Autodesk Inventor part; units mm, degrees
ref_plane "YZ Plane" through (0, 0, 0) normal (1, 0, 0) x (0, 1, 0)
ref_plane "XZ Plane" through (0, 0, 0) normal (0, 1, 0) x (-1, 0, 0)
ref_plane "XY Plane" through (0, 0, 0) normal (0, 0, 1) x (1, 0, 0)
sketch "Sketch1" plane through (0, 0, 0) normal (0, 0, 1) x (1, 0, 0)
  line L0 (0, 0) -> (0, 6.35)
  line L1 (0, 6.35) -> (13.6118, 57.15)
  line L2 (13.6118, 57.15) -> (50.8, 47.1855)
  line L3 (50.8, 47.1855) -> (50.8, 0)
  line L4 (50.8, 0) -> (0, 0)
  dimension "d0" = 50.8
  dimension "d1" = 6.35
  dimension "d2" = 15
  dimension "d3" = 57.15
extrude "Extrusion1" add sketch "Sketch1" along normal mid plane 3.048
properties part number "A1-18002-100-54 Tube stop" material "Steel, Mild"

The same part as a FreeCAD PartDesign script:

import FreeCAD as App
import Part
import Sketcher
Q = App.Units.Quantity


def add_polygon(sketch, points):
    """Adds a closed chain of lines whose ends are joined by coincident constraints."""
    first, n = sketch.GeometryCount, len(points)
    for a, b in zip(points, points[1:] + points[:1]):
        sketch.addGeometry(Part.LineSegment(App.Vector(*a, 0), App.Vector(*b, 0)), False)
    for i in range(n):
        sketch.addConstraint(Sketcher.Constraint("Coincident", first + i, 2, first + (i + 1) % n, 1))

doc = App.newDocument("Part")
body = doc.addObject("PartDesign::Body", "Body")

# Sketch on XY plane
sketch1 = body.newObject("Sketcher::SketchObject", "Sketch")
sketch1.AttachmentSupport = (doc.getObject("XY_Plane"), [""])
sketch1.MapMode = "FlatFace"
add_polygon(sketch1, [(0, 6), (0, 0), (51, 0), (51, 47), (14, 57)])  # lines 0-4
sketch1.addConstraint([
    Sketcher.Constraint("Vertical", 0),
    Sketcher.Constraint("Horizontal", 1),
    Sketcher.Constraint("Vertical", 2),
    Sketcher.Constraint("Coincident", 0, 2, -1, 1),
    Sketcher.Constraint("Perpendicular", 3, 4),
    Sketcher.Constraint("DistanceX", 1, 1, 1, 2, Q("2 in")),
    Sketcher.Constraint("DistanceY", 4, 2, 3, 2, Q("2 in")),
    Sketcher.Constraint("DistanceY", 0, 2, 0, 1, Q("0.25 in")),
    Sketcher.Constraint("Angle", 3, Q("165 deg")),
])
pad1 = body.newObject("PartDesign::Pad", "Pad")
pad1.Profile = sketch1
pad1.Length = Q("0.12 in")
pad1.Midplane = True

doc.recompute()
